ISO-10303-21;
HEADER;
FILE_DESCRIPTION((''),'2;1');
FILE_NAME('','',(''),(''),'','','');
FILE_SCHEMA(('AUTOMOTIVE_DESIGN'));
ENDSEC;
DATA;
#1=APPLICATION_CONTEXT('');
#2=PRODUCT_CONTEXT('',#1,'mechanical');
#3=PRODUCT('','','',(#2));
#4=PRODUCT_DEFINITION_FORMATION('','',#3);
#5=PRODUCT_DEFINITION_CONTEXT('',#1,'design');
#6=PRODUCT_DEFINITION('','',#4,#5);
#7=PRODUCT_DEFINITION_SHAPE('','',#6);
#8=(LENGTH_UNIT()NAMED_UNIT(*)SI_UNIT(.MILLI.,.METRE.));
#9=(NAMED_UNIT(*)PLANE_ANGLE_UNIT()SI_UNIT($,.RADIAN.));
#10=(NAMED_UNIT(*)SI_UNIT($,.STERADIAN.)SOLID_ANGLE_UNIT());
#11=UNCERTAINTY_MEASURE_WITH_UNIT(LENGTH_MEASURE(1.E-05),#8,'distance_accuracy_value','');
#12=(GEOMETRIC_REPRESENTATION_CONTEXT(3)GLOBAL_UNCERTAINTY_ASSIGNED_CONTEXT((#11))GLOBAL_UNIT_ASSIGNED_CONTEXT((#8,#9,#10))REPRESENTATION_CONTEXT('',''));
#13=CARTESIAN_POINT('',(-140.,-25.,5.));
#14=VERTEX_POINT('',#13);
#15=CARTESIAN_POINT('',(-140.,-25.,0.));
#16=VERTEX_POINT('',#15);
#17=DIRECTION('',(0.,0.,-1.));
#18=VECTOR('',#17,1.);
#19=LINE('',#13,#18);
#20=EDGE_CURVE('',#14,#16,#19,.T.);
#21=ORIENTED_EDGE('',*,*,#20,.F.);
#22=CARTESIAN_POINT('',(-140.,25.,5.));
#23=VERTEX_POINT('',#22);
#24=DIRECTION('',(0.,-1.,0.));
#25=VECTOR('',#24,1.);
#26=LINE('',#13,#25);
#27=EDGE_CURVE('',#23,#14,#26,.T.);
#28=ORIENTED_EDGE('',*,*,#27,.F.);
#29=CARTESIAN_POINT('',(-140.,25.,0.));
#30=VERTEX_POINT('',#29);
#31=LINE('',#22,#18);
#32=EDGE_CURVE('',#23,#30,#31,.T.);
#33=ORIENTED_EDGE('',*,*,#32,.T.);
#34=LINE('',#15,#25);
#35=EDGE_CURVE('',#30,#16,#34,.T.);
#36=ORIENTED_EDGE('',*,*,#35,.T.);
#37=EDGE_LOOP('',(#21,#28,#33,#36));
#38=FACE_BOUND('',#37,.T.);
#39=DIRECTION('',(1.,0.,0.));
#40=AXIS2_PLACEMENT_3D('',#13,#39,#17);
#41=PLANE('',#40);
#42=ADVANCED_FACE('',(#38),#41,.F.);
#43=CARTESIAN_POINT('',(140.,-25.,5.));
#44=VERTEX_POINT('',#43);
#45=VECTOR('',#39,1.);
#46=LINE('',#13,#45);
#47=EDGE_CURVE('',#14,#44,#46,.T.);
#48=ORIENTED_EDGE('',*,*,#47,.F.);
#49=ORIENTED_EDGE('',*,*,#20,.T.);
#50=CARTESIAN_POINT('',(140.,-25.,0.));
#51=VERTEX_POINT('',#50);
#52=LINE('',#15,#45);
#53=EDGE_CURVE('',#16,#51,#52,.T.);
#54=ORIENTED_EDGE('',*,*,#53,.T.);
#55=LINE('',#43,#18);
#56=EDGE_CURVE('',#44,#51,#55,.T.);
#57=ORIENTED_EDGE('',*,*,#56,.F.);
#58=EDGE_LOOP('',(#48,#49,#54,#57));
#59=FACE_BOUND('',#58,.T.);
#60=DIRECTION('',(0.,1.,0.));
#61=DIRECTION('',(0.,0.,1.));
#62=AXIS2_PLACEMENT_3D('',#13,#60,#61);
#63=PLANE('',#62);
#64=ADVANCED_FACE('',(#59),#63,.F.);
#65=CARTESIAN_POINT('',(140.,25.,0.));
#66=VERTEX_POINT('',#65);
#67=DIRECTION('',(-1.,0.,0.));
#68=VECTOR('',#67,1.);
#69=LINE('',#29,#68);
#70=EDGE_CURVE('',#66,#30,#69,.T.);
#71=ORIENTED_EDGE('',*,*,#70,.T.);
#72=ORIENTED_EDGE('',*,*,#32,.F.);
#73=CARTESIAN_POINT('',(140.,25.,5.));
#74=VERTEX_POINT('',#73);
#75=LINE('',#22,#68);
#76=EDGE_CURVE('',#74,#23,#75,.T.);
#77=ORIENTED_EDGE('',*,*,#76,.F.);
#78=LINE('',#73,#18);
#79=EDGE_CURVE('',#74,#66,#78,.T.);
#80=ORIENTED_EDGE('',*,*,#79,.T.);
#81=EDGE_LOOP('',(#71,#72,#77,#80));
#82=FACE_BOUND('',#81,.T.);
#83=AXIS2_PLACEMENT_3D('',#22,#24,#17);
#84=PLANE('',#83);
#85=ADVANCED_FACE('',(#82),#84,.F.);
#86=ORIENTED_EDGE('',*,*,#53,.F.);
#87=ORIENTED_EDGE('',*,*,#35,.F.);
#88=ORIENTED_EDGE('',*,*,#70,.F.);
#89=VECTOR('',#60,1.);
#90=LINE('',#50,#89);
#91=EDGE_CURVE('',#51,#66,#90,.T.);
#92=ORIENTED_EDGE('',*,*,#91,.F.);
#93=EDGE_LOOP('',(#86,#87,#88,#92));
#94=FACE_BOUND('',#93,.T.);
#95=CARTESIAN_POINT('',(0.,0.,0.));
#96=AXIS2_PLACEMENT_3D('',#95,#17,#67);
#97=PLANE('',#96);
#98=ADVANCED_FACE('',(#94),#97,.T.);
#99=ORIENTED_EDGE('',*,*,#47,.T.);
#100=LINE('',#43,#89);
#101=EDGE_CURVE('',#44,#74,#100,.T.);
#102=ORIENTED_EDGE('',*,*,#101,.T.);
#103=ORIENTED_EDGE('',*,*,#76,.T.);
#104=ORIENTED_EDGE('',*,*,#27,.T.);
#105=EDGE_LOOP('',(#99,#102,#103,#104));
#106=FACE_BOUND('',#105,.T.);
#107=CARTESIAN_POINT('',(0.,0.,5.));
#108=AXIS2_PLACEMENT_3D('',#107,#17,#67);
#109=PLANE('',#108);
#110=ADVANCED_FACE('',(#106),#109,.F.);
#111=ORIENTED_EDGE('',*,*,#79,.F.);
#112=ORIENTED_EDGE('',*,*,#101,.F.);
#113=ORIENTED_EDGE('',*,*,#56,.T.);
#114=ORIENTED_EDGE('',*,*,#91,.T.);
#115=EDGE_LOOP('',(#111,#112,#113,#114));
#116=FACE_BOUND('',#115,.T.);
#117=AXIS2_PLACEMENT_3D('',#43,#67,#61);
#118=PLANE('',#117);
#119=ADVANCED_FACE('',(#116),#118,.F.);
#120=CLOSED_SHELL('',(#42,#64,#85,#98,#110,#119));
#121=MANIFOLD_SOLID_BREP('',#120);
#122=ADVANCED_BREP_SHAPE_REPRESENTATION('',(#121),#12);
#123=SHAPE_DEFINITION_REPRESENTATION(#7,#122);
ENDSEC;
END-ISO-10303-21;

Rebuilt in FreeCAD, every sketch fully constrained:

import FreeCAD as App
import Part
import Sketcher
Q = App.Units.Quantity

doc = App.newDocument("Part")
params = doc.addObject("Spreadsheet::Sheet", "Params")
for row, (alias, value) in enumerate([
    ("sketch1_width", "280 mm"),
    ("sketch1_height", "50 mm"),
    ("pad1_length", "5 mm"),
], start=1):
    params.set(f"A{row}", alias)
    params.set(f"B{row}", "=" + value)
    params.setAlias(f"B{row}", alias)

body = doc.addObject("PartDesign::Body", "Body")

# Sketch on XY plane
sketch1 = body.newObject("Sketcher::SketchObject", "Sketch")
sketch1.AttachmentSupport = (doc.getObject("XY_Plane"), [""])
sketch1.MapMode = "FlatFace"
sketch1.addGeometry([
    Part.LineSegment(App.Vector(-140, 25, 0), App.Vector(-140, -25, 0)),
    Part.LineSegment(App.Vector(-140, -25, 0), App.Vector(140, -25, 0)),
    Part.LineSegment(App.Vector(140, -25, 0), App.Vector(140, 25, 0)),
    Part.LineSegment(App.Vector(140, 25, 0), App.Vector(-140, 25, 0)),
], False)
sketch1.addConstraint([
    Sketcher.Constraint("Coincident", 0, 2, 1, 1),
    Sketcher.Constraint("Coincident", 1, 2, 2, 1),
    Sketcher.Constraint("Coincident", 2, 2, 3, 1),
    Sketcher.Constraint("Coincident", 3, 2, 0, 1),
    Sketcher.Constraint("Vertical", 0),
    Sketcher.Constraint("Horizontal", 1),
    Sketcher.Constraint("Vertical", 2),
    Sketcher.Constraint("Horizontal", 3),
    Sketcher.Constraint("Symmetric", 0, 2, 2, 2, -1, 1),
    Sketcher.Constraint("DistanceX", 1, 1, 1, 2, Q("280 mm")),
    Sketcher.Constraint("DistanceY", 0, 2, 0, 1, Q("50 mm")),
])
sketch1.setExpression("Constraints[9]", "Params.sketch1_width")
sketch1.setExpression("Constraints[10]", "Params.sketch1_height")
pad1 = body.newObject("PartDesign::Pad", "Pad")
pad1.Profile = sketch1
pad1.setExpression("Length", "Params.pad1_length")

doc.recompute()
